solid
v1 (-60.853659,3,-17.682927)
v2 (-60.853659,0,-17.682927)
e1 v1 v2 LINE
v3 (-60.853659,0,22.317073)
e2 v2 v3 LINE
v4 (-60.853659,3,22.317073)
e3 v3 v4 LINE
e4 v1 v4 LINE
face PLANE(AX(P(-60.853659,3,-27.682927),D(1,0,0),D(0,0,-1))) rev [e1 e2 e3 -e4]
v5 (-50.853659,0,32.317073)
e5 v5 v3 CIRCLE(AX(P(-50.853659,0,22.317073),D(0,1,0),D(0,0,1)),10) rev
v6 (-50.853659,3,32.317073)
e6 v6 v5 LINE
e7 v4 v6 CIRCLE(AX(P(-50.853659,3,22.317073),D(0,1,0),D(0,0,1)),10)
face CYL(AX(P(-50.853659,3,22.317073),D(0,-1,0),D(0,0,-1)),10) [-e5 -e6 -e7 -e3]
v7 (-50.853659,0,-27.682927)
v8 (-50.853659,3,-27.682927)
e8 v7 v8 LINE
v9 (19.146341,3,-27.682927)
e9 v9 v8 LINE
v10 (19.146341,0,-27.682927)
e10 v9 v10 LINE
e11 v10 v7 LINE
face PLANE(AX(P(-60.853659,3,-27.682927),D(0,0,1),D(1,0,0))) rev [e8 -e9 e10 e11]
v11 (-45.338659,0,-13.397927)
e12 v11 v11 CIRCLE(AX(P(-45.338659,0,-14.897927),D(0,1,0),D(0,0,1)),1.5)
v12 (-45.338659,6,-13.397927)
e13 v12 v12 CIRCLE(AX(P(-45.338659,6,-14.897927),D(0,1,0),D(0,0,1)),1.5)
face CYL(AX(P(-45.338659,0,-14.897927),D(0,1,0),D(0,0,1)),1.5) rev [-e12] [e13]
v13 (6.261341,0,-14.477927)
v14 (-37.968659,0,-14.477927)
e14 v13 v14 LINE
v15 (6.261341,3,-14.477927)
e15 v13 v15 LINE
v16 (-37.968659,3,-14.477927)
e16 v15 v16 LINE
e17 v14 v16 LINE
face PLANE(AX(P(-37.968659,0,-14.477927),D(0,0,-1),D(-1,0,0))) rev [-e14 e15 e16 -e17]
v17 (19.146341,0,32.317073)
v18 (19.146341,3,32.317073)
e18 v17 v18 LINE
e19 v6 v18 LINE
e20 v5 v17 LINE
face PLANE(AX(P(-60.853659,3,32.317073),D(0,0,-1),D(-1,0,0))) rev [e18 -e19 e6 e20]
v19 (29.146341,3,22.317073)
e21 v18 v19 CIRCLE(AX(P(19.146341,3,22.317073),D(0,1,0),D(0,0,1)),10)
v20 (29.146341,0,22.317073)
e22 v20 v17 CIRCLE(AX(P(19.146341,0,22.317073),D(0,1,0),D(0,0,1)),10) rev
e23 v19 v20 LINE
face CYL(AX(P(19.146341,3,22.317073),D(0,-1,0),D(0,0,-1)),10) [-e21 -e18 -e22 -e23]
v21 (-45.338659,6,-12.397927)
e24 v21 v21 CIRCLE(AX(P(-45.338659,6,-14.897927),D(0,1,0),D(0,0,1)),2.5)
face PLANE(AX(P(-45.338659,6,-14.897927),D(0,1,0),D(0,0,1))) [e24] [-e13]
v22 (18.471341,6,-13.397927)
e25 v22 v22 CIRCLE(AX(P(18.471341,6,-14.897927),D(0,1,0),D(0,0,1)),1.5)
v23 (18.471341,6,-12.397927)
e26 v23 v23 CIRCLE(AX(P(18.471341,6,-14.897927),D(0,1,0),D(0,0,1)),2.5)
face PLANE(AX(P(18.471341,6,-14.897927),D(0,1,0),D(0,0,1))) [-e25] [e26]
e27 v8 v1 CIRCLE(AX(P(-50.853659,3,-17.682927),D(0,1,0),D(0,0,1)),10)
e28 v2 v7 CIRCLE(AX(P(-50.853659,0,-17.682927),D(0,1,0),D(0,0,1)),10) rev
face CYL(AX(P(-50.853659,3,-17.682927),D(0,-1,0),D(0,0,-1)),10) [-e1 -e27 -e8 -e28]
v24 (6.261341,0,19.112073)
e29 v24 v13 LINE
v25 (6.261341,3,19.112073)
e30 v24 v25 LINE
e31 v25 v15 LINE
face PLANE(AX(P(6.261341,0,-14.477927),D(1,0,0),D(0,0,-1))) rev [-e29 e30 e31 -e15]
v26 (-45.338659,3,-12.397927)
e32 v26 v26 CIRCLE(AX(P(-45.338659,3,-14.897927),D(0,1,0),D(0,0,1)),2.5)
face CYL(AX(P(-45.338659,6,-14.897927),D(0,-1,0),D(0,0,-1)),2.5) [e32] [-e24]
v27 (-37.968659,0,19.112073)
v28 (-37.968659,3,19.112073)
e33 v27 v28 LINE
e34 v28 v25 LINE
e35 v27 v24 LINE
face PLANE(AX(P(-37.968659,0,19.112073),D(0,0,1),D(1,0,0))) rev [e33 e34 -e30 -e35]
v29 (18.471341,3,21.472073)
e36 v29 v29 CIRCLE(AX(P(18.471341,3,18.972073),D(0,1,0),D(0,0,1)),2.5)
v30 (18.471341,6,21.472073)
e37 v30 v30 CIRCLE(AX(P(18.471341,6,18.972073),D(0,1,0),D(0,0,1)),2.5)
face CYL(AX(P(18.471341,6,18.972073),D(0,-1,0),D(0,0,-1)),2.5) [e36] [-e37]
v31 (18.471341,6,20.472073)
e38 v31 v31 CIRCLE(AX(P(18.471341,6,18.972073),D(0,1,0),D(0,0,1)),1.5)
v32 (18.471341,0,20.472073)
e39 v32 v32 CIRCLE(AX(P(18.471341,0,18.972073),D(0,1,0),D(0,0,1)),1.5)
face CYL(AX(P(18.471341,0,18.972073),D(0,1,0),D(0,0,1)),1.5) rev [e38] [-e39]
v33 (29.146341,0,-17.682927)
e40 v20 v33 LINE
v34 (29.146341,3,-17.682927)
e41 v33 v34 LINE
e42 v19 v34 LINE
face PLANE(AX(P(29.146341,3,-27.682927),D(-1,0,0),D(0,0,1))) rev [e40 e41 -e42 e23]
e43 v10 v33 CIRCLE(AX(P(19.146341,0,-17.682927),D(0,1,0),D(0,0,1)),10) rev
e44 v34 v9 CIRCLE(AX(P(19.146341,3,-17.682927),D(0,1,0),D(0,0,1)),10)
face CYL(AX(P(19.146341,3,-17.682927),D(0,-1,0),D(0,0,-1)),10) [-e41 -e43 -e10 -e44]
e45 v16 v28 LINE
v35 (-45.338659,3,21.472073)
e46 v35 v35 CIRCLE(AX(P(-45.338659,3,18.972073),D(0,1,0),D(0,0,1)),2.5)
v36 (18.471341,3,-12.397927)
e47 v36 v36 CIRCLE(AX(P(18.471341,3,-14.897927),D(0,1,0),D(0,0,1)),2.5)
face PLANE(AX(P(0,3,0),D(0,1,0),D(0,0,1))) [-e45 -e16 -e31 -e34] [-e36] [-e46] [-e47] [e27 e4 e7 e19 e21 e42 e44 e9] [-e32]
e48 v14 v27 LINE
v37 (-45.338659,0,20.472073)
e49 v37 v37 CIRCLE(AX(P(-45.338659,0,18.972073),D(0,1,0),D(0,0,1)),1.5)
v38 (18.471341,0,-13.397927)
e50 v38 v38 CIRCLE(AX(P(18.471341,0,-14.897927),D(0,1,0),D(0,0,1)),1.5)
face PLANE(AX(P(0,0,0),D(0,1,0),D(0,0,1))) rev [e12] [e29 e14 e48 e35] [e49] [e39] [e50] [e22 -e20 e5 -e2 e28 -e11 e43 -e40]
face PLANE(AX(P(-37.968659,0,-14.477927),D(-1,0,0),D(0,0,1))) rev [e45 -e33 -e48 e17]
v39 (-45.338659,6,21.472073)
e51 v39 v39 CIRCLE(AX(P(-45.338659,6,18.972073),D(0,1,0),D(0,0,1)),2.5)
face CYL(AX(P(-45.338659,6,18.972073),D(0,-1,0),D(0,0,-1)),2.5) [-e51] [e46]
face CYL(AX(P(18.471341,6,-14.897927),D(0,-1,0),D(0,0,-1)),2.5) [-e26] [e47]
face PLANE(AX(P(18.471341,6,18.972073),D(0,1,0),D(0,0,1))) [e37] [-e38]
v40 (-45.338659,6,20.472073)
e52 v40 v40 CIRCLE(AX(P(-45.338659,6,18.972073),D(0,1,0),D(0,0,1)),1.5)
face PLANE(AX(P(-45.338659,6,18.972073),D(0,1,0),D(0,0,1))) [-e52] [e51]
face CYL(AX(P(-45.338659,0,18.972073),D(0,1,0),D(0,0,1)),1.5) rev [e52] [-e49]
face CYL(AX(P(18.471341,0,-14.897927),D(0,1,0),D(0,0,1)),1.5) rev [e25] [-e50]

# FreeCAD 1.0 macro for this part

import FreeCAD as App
import Part
import Sketcher
from FreeCAD import Vector
Q = App.Units.Quantity


def edges_at(feature, points):
    """Names of the edges that pass closest to the given points."""
    edges = feature.Shape.Edges
    near = lambda p: min(range(len(edges)), key=lambda i: edges[i].distToShape(Part.Vertex(*p))[0])
    return sorted({f"Edge{near(p) + 1}" for p in points})


def add_polygon(sketch, points):
    """Adds a closed chain of lines whose ends are joined by coincident constraints."""
    first, n = sketch.GeometryCount, len(points)
    for a, b in zip(points, points[1:] + points[:1]):
        sketch.addGeometry(Part.LineSegment(App.Vector(*a, 0), App.Vector(*b, 0)), False)
    for i in range(n):
        sketch.addConstraint(Sketcher.Constraint("Coincident", first + i, 2, first + (i + 1) % n, 1))

doc = App.newDocument("Part")
body = doc.addObject("PartDesign::Body", "Body")

sketch1 = body.newObject("Sketcher::SketchObject", "Sketch")
sketch1.AttachmentSupport = (doc.getObject("XZ_Plane"), [""])
sketch1.MapMode = "FlatFace"
add_polygon(sketch1, [(-61, -28), (-61, 32), (29, 32), (29, -28)])
sketch1.addConstraint(Sketcher.Constraint("Vertical", 0))
sketch1.addConstraint(Sketcher.Constraint("Horizontal", 1))
sketch1.addConstraint(Sketcher.Constraint("Vertical", 2))
sketch1.addConstraint(Sketcher.Constraint("Horizontal", 3))
sketch1.addConstraint(Sketcher.Constraint("DistanceX", 1, 1, 1, 2, Q("90 mm")))
sketch1.addConstraint(Sketcher.Constraint("DistanceY", 0, 1, 0, 2, Q("60 mm")))
sketch1.addConstraint(Sketcher.Constraint("DistanceX", 0, 2, -1, 1, Q("60.853659 mm")))
sketch1.addConstraint(Sketcher.Constraint("DistanceY", -1, 1, 0, 2, Q("32.317073 mm")))
pad1 = body.newObject("PartDesign::Pad", "Pad")
pad1.Profile = sketch1
pad1.Length = 3
pad1.Reversed = True

sketch2 = body.newObject("Sketcher::SketchObject", "Sketch001")
sketch2.AttachmentSupport = (doc.getObject("XZ_Plane"), [""])
sketch2.MapMode = "FlatFace"
sketch2.AttachmentOffset = App.Placement(Vector(0, 0, -3), App.Rotation())
sketch2.addGeometry(Part.Circle(Vector(-45.3, -14.9, 0), Vector(0, 0, 1), 1.5), False)
sketch2.addGeometry(Part.Circle(Vector(-45.3, 19, 0), Vector(0, 0, 1), 1.5), False)
sketch2.addGeometry(Part.Circle(Vector(18.5, -14.9, 0), Vector(0, 0, 1), 1.5), False)
sketch2.addGeometry(Part.Circle(Vector(18.5, 19, 0), Vector(0, 0, 1), 1.5), False)
add_polygon(sketch2, [(-38, -14.5), (-38, 19.1), (6.3, 19.1), (6.3, -14.5)])
sketch2.addConstraint(Sketcher.Constraint("Vertical", 4))
sketch2.addConstraint(Sketcher.Constraint("Horizontal", 5))
sketch2.addConstraint(Sketcher.Constraint("Vertical", 6))
sketch2.addConstraint(Sketcher.Constraint("Horizontal", 7))
sketch2.addConstraint(Sketcher.Constraint("Equal", 0, 1))
sketch2.addConstraint(Sketcher.Constraint("Equal", 1, 2))
sketch2.addConstraint(Sketcher.Constraint("Equal", 2, 3))
sketch2.addConstraint(Sketcher.Constraint("Horizontal", 0, 3, 2, 3))
sketch2.addConstraint(Sketcher.Constraint("Horizontal", 1, 3, 3, 3))
sketch2.addConstraint(Sketcher.Constraint("Vertical", 0, 3, 1, 3))
sketch2.addConstraint(Sketcher.Constraint("Vertical", 2, 3, 3, 3))
sketch2.addConstraint(Sketcher.Constraint("Diameter", 0, Q("3 mm")))
sketch2.addConstraint(Sketcher.Constraint("DistanceX", 5, 1, 5, 2, Q("44.23 mm")))
sketch2.addConstraint(Sketcher.Constraint("DistanceY", 4, 1, 4, 2, Q("33.59 mm")))
sketch2.addConstraint(Sketcher.Constraint("DistanceX", 1, 3, 5, 2, Q("51.6 mm")))
sketch2.addConstraint(Sketcher.Constraint("DistanceY", 0, 3, 1, 3, Q("33.87 mm")))
sketch2.addConstraint(Sketcher.Constraint("DistanceX", 0, 3, 2, 3, Q("63.81 mm")))
sketch2.addConstraint(Sketcher.Constraint("DistanceY", 1, 3, 4, 2, Q("0.14 mm")))
sketch2.addConstraint(Sketcher.Constraint("DistanceX", 0, 3, -1, 1, Q("45.338659 mm")))
sketch2.addConstraint(Sketcher.Constraint("DistanceY", 0, 3, -1, 1, Q("14.897927 mm")))
pocket1 = body.newObject("PartDesign::Pocket", "Pocket")
pocket1.Profile = sketch2
pocket1.Type = "ThroughAll"
pocket1.Reversed = True
doc.recompute()

fillet = body.newObject("PartDesign::Fillet", "Fillet")
fillet.Base = (pocket1, edges_at(pocket1, [
    (-60.854, 1.5, -27.683),
    (29.146, 1.5, -27.683),
    (29.146, 1.5, 32.317),
    (-60.854, 1.5, 32.317),
]))
fillet.Radius = 10

sketch3 = body.newObject("Sketcher::SketchObject", "Sketch002")
sketch3.AttachmentSupport = (doc.getObject("XZ_Plane"), [""])
sketch3.MapMode = "FlatFace"
sketch3.AttachmentOffset = App.Placement(Vector(0, 0, -3), App.Rotation())
sketch3.addGeometry(Part.Circle(Vector(-45.3, -14.9, 0), Vector(0, 0, 1), 2.5), False)
sketch3.addGeometry(Part.Circle(Vector(-45.3, 19, 0), Vector(0, 0, 1), 2.5), False)
sketch3.addGeometry(Part.Circle(Vector(18.5, 19, 0), Vector(0, 0, 1), 2.5), False)
sketch3.addGeometry(Part.Circle(Vector(18.5, -14.9, 0), Vector(0, 0, 1), 2.5), False)
sketch3.addConstraint(Sketcher.Constraint("Equal", 0, 1))
sketch3.addConstraint(Sketcher.Constraint("Equal", 1, 2))
sketch3.addConstraint(Sketcher.Constraint("Equal", 2, 3))
sketch3.addConstraint(Sketcher.Constraint("Horizontal", 1, 3, 2, 3))
sketch3.addConstraint(Sketcher.Constraint("Horizontal", 0, 3, 3, 3))
sketch3.addConstraint(Sketcher.Constraint("Vertical", 0, 3, 1, 3))
sketch3.addConstraint(Sketcher.Constraint("Vertical", 2, 3, 3, 3))
sketch3.addConstraint(Sketcher.Constraint("Diameter", 0, Q("5 mm")))
sketch3.addConstraint(Sketcher.Constraint("DistanceY", 0, 3, 1, 3, Q("33.87 mm")))
sketch3.addConstraint(Sketcher.Constraint("DistanceX", 1, 3, 2, 3, Q("63.81 mm")))
sketch3.addConstraint(Sketcher.Constraint("DistanceX", 0, 3, -1, 1, Q("45.338659 mm")))
sketch3.addConstraint(Sketcher.Constraint("DistanceY", 0, 3, -1, 1, Q("14.897927 mm")))
pad2 = body.newObject("PartDesign::Pad", "Pad001")
pad2.Profile = sketch3
pad2.Length = 3
pad2.Reversed = True

sketch4 = body.newObject("Sketcher::SketchObject", "Sketch003")
sketch4.AttachmentSupport = (doc.getObject("XZ_Plane"), [""])
sketch4.MapMode = "FlatFace"
sketch4.AttachmentOffset = App.Placement(Vector(0, 0, -6), App.Rotation())
sketch4.addGeometry(Part.Circle(Vector(-45.3, -14.9, 0), Vector(0, 0, 1), 1.5), False)
sketch4.addGeometry(Part.Circle(Vector(-45.3, 19, 0), Vector(0, 0, 1), 1.5), False)
sketch4.addGeometry(Part.Circle(Vector(18.5, -14.9, 0), Vector(0, 0, 1), 1.5), False)
sketch4.addGeometry(Part.Circle(Vector(18.5, 19, 0), Vector(0, 0, 1), 1.5), False)
sketch4.addConstraint(Sketcher.Constraint("Equal", 0, 1))
sketch4.addConstraint(Sketcher.Constraint("Equal", 1, 2))
sketch4.addConstraint(Sketcher.Constraint("Equal", 2, 3))
sketch4.addConstraint(Sketcher.Constraint("Horizontal", 0, 3, 2, 3))
sketch4.addConstraint(Sketcher.Constraint("Horizontal", 1, 3, 3, 3))
sketch4.addConstraint(Sketcher.Constraint("Vertical", 0, 3, 1, 3))
sketch4.addConstraint(Sketcher.Constraint("Vertical", 2, 3, 3, 3))
sketch4.addConstraint(Sketcher.Constraint("Diameter", 0, Q("3 mm")))
sketch4.addConstraint(Sketcher.Constraint("DistanceY", 0, 3, 1, 3, Q("33.87 mm")))
sketch4.addConstraint(Sketcher.Constraint("DistanceX", 0, 3, 2, 3, Q("63.81 mm")))
sketch4.addConstraint(Sketcher.Constraint("DistanceX", 0, 3, -1, 1, Q("45.338659 mm")))
sketch4.addConstraint(Sketcher.Constraint("DistanceY", 0, 3, -1, 1, Q("14.897927 mm")))
pocket2 = body.newObject("PartDesign::Pocket", "Pocket001")
pocket2.Profile = sketch4
pocket2.Type = "ThroughAll"
pocket2.Reversed = True

doc.recompute()
